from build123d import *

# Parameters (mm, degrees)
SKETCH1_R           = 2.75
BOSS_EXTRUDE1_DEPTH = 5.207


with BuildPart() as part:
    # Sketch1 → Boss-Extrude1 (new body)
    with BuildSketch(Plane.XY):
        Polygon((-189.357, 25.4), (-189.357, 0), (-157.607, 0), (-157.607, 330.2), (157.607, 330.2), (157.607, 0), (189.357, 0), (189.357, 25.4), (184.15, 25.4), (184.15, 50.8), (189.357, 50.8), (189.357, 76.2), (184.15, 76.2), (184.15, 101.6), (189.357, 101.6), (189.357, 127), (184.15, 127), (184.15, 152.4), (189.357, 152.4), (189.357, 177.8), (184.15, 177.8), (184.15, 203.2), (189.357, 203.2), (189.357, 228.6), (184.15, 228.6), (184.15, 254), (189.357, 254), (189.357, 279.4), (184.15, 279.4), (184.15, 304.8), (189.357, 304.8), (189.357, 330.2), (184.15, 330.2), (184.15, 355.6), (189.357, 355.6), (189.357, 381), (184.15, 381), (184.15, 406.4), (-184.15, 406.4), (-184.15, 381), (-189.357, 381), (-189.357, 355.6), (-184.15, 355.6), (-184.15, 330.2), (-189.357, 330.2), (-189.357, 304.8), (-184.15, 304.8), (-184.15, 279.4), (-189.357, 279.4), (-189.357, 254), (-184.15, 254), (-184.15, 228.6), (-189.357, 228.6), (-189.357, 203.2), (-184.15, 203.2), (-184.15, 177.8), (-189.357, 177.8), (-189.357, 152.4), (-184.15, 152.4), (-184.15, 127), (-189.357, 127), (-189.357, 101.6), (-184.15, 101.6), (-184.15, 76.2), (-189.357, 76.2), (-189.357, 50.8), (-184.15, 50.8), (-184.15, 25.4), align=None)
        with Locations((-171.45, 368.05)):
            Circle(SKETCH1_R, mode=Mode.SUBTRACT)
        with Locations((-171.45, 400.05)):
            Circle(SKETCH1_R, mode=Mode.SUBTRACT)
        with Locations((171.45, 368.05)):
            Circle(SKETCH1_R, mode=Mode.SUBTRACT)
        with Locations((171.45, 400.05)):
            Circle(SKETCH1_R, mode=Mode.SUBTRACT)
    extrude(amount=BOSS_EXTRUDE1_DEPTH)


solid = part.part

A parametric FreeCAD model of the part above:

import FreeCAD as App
import Part
import Sketcher
from FreeCAD import Vector
Q = App.Units.Quantity


def add_polygon(sketch, points):
    """Adds a closed chain of lines whose ends are joined by coincident constraints."""
    first, n = sketch.GeometryCount, len(points)
    for a, b in zip(points, points[1:] + points[:1]):
        sketch.addGeometry(Part.LineSegment(App.Vector(*a, 0), App.Vector(*b, 0)), False)
    for i in range(n):
        sketch.addConstraint(Sketcher.Constraint("Coincident", first + i, 2, first + (i + 1) % n, 1))

doc = App.newDocument("Part")
params = doc.addObject("Spreadsheet::Sheet", "Params")
for row, (alias, value) in enumerate([
    ("sketch1_height", "1 in"),
    ("sketch1_width", "14.5 in"),
    ("sketch1_width2", "1.25 in"),
    ("sketch1_width3", "12.41 in"),
    ("pad1_length", "0.205 in"),
], start=1):
    params.set(f"A{row}", alias)
    params.set(f"B{row}", "=" + value)
    params.setAlias(f"B{row}", alias)

body = doc.addObject("PartDesign::Body", "Body")

sketch1 = body.newObject("Sketcher::SketchObject", "Sketch")
sketch1.AttachmentSupport = (doc.getObject("XY_Plane"), [""])
sketch1.MapMode = "FlatFace"
add_polygon(sketch1, [(-189.4, 25.4), (-189.4, 0), (-157.6, 0), (-157.6, 330.2), (157.6, 330.2), (157.6, 0), (189.4, 0), (189.4, 25.4), (184.2, 25.4), (184.2, 50.8), (189.4, 50.8), (189.4, 76.2), (184.2, 76.2), (184.2, 101.6), (189.4, 101.6), (189.4, 127), (184.2, 127), (184.2, 152.4), (189.4, 152.4), (189.4, 177.8), (184.2, 177.8), (184.2, 203.2), (189.4, 203.2), (189.4, 228.6), (184.2, 228.6), (184.2, 254), (189.4, 254), (189.4, 279.4), (184.2, 279.4), (184.2, 304.8), (189.4, 304.8), (189.4, 330.2), (184.2, 330.2), (184.2, 355.6), (189.4, 355.6), (189.4, 381), (184.2, 381), (184.2, 406.4), (-184.2, 406.4), (-184.2, 381), (-189.4, 381), (-189.4, 355.6), (-184.2, 355.6), (-184.2, 330.2), (-189.4, 330.2), (-189.4, 304.8), (-184.2, 304.8), (-184.2, 279.4), (-189.4, 279.4), (-189.4, 254), (-184.2, 254), (-184.2, 228.6), (-189.4, 228.6), (-189.4, 203.2), (-184.2, 203.2), (-184.2, 177.8), (-189.4, 177.8), (-189.4, 152.4), (-184.2, 152.4), (-184.2, 127), (-189.4, 127), (-189.4, 101.6), (-184.2, 101.6), (-184.2, 76.2), (-189.4, 76.2), (-189.4, 50.8), (-184.2, 50.8), (-184.2, 25.4)])
sketch1.addGeometry(Part.Circle(Vector(-171.4, 368.1, 0), Vector(0, 0, 1), 2.8), False)
sketch1.addGeometry(Part.Circle(Vector(171.4, 368.1, 0), Vector(0, 0, 1), 2.8), False)
sketch1.addGeometry(Part.Circle(Vector(-171.4, 400.1, 0), Vector(0, 0, 1), 2.8), False)
sketch1.addGeometry(Part.Circle(Vector(171.4, 400.1, 0), Vector(0, 0, 1), 2.8), False)
sketch1.addConstraint(Sketcher.Constraint("Vertical", 0))
sketch1.addConstraint(Sketcher.Constraint("Horizontal", 1))
sketch1.addConstraint(Sketcher.Constraint("Vertical", 2))
sketch1.addConstraint(Sketcher.Constraint("Horizontal", 3))
sketch1.addConstraint(Sketcher.Constraint("Vertical", 4))
sketch1.addConstraint(Sketcher.Constraint("Horizontal", 5))
sketch1.addConstraint(Sketcher.Constraint("Vertical", 6))
sketch1.addConstraint(Sketcher.Constraint("Horizontal", 7))
sketch1.addConstraint(Sketcher.Constraint("Vertical", 8))
sketch1.addConstraint(Sketcher.Constraint("Horizontal", 9))
sketch1.addConstraint(Sketcher.Constraint("Vertical", 10))
sketch1.addConstraint(Sketcher.Constraint("Horizontal", 11))
sketch1.addConstraint(Sketcher.Constraint("Vertical", 12))
sketch1.addConstraint(Sketcher.Constraint("Horizontal", 13))
sketch1.addConstraint(Sketcher.Constraint("Vertical", 14))
sketch1.addConstraint(Sketcher.Constraint("Horizontal", 15))
sketch1.addConstraint(Sketcher.Constraint("Vertical", 16))
sketch1.addConstraint(Sketcher.Constraint("Horizontal", 17))
sketch1.addConstraint(Sketcher.Constraint("Vertical", 18))
sketch1.addConstraint(Sketcher.Constraint("Horizontal", 19))
sketch1.addConstraint(Sketcher.Constraint("Vertical", 20))
sketch1.addConstraint(Sketcher.Constraint("Horizontal", 21))
sketch1.addConstraint(Sketcher.Constraint("Vertical", 22))
sketch1.addConstraint(Sketcher.Constraint("Horizontal", 23))
sketch1.addConstraint(Sketcher.Constraint("Vertical", 24))
sketch1.addConstraint(Sketcher.Constraint("Horizontal", 25))
sketch1.addConstraint(Sketcher.Constraint("Vertical", 26))
sketch1.addConstraint(Sketcher.Constraint("Horizontal", 27))
sketch1.addConstraint(Sketcher.Constraint("Vertical", 28))
sketch1.addConstraint(Sketcher.Constraint("Horizontal", 29))
sketch1.addConstraint(Sketcher.Constraint("Vertical", 30))
sketch1.addConstraint(Sketcher.Constraint("Horizontal", 31))
sketch1.addConstraint(Sketcher.Constraint("Vertical", 32))
sketch1.addConstraint(Sketcher.Constraint("Horizontal", 33))
sketch1.addConstraint(Sketcher.Constraint("Vertical", 34))
sketch1.addConstraint(Sketcher.Constraint("Horizontal", 35))
sketch1.addConstraint(Sketcher.Constraint("Vertical", 36))
sketch1.addConstraint(Sketcher.Constraint("Horizontal", 37))
sketch1.addConstraint(Sketcher.Constraint("Vertical", 38))
sketch1.addConstraint(Sketcher.Constraint("Horizontal", 39))
sketch1.addConstraint(Sketcher.Constraint("Vertical", 40))
sketch1.addConstraint(Sketcher.Constraint("Horizontal", 41))
sketch1.addConstraint(Sketcher.Constraint("Vertical", 42))
sketch1.addConstraint(Sketcher.Constraint("Horizontal", 43))
sketch1.addConstraint(Sketcher.Constraint("Vertical", 44))
sketch1.addConstraint(Sketcher.Constraint("Horizontal", 45))
sketch1.addConstraint(Sketcher.Constraint("Vertical", 46))
sketch1.addConstraint(Sketcher.Constraint("Horizontal", 47))
sketch1.addConstraint(Sketcher.Constraint("Vertical", 48))
sketch1.addConstraint(Sketcher.Constraint("Horizontal", 49))
sketch1.addConstraint(Sketcher.Constraint("Vertical", 50))
sketch1.addConstraint(Sketcher.Constraint("Horizontal", 51))
sketch1.addConstraint(Sketcher.Constraint("Vertical", 52))
sketch1.addConstraint(Sketcher.Constraint("Horizontal", 53))
sketch1.addConstraint(Sketcher.Constraint("Vertical", 54))
sketch1.addConstraint(Sketcher.Constraint("Horizontal", 55))
sketch1.addConstraint(Sketcher.Constraint("Vertical", 56))
sketch1.addConstraint(Sketcher.Constraint("Horizontal", 57))
sketch1.addConstraint(Sketcher.Constraint("Vertical", 58))
sketch1.addConstraint(Sketcher.Constraint("Horizontal", 59))
sketch1.addConstraint(Sketcher.Constraint("Vertical", 60))
sketch1.addConstraint(Sketcher.Constraint("Horizontal", 61))
sketch1.addConstraint(Sketcher.Constraint("Vertical", 62))
sketch1.addConstraint(Sketcher.Constraint("Horizontal", 63))
sketch1.addConstraint(Sketcher.Constraint("Vertical", 64))
sketch1.addConstraint(Sketcher.Constraint("Horizontal", 65))
sketch1.addConstraint(Sketcher.Constraint("Vertical", 66))
sketch1.addConstraint(Sketcher.Constraint("Horizontal", 67))
sketch1.addConstraint(Sketcher.Constraint("Equal", 68, 69))
sketch1.addConstraint(Sketcher.Constraint("Equal", 69, 70))
sketch1.addConstraint(Sketcher.Constraint("Equal", 70, 71))
sketch1.addConstraint(Sketcher.Constraint("Symmetric", 1, 2, 4, 2, -1, 1))
sketch1.addConstraint(Sketcher.Constraint("Symmetric", 68, 3, 69, 3, -2))
sketch1.addConstraint(Sketcher.Constraint("Symmetric", 70, 3, 71, 3, -2))
sketch1.addConstraint(Sketcher.Constraint("Symmetric", 0, 2, 5, 2, -2))
sketch1.addConstraint(Sketcher.Constraint("Symmetric", 35, 2, 38, 2, -2))
sketch1.addConstraint(Sketcher.Constraint("Symmetric", 33, 2, 40, 2, -2))
sketch1.addConstraint(Sketcher.Constraint("Symmetric", 31, 2, 42, 2, -2))
sketch1.addConstraint(Sketcher.Constraint("Symmetric", 29, 2, 44, 2, -2))
sketch1.addConstraint(Sketcher.Constraint("Symmetric", 27, 2, 46, 2, -2))
sketch1.addConstraint(Sketcher.Constraint("Symmetric", 25, 2, 48, 2, -2))
sketch1.addConstraint(Sketcher.Constraint("Symmetric", 23, 2, 50, 2, -2))
sketch1.addConstraint(Sketcher.Constraint("Symmetric", 21, 2, 52, 2, -2))
sketch1.addConstraint(Sketcher.Constraint("Symmetric", 19, 2, 54, 2, -2))
sketch1.addConstraint(Sketcher.Constraint("Symmetric", 17, 2, 56, 2, -2))
sketch1.addConstraint(Sketcher.Constraint("Symmetric", 15, 2, 58, 2, -2))
sketch1.addConstraint(Sketcher.Constraint("Symmetric", 13, 2, 60, 2, -2))
sketch1.addConstraint(Sketcher.Constraint("Symmetric", 11, 2, 62, 2, -2))
sketch1.addConstraint(Sketcher.Constraint("Symmetric", 9, 2, 64, 2, -2))
sketch1.addConstraint(Sketcher.Constraint("Symmetric", 7, 2, 66, 2, -2))
sketch1.addConstraint(Sketcher.Constraint("Horizontal", 3, 2, 30, 2))
sketch1.addConstraint(Sketcher.Constraint("Vertical", 68, 3, 70, 3))
sketch1.addConstraint(Sketcher.Constraint("Vertical", 6, 2, 9, 2))
sketch1.addConstraint(Sketcher.Constraint("Vertical", 8, 2, 11, 2))
sketch1.addConstraint(Sketcher.Constraint("Vertical", 10, 2, 13, 2))
sketch1.addConstraint(Sketcher.Constraint("Vertical", 12, 2, 15, 2))
sketch1.addConstraint(Sketcher.Constraint("Vertical", 14, 2, 17, 2))
sketch1.addConstraint(Sketcher.Constraint("Vertical", 16, 2, 19, 2))
sketch1.addConstraint(Sketcher.Constraint("Vertical", 18, 2, 21, 2))
sketch1.addConstraint(Sketcher.Constraint("Vertical", 20, 2, 23, 2))
sketch1.addConstraint(Sketcher.Constraint("Vertical", 22, 2, 25, 2))
sketch1.addConstraint(Sketcher.Constraint("Vertical", 24, 2, 27, 2))
sketch1.addConstraint(Sketcher.Constraint("Vertical", 26, 2, 29, 2))
sketch1.addConstraint(Sketcher.Constraint("Vertical", 28, 2, 31, 2))
sketch1.addConstraint(Sketcher.Constraint("Vertical", 30, 2, 33, 2))
sketch1.addConstraint(Sketcher.Constraint("Vertical", 32, 2, 35, 2))
sketch1.addConstraint(Sketcher.Constraint("Equal", 6, 8))
sketch1.addConstraint(Sketcher.Constraint("Equal", 8, 10))
sketch1.addConstraint(Sketcher.Constraint("Equal", 10, 12))
sketch1.addConstraint(Sketcher.Constraint("Equal", 12, 14))
sketch1.addConstraint(Sketcher.Constraint("Equal", 14, 16))
sketch1.addConstraint(Sketcher.Constraint("Equal", 16, 18))
sketch1.addConstraint(Sketcher.Constraint("Equal", 18, 20))
sketch1.addConstraint(Sketcher.Constraint("Equal", 20, 22))
sketch1.addConstraint(Sketcher.Constraint("Equal", 22, 24))
sketch1.addConstraint(Sketcher.Constraint("Equal", 24, 26))
sketch1.addConstraint(Sketcher.Constraint("Equal", 26, 28))
sketch1.addConstraint(Sketcher.Constraint("Equal", 28, 30))
sketch1.addConstraint(Sketcher.Constraint("Equal", 30, 32))
sketch1.addConstraint(Sketcher.Constraint("Equal", 32, 34))
sketch1.addConstraint(Sketcher.Constraint("Equal", 34, 36))
sketch1.addConstraint(Sketcher.Constraint("DistanceY", 0, 2, 0, 1, Q("1 in")))
sketch1.addConstraint(Sketcher.Constraint("DistanceX", 37, 2, 37, 1, Q("14.5 in")))
sketch1.addConstraint(Sketcher.Constraint("DistanceX", 1, 1, 1, 2, Q("1.25 in")))
sketch1.addConstraint(Sketcher.Constraint("DistanceX", 3, 1, 3, 2, Q("12.41 in")))
sketch1.addConstraint(Sketcher.Constraint("Diameter", 68, 5.5))
sketch1.addConstraint(Sketcher.Constraint("DistanceX", 68, 3, -1, 1, Q("6.75 in")))
sketch1.addConstraint(Sketcher.Constraint("DistanceY", -1, 1, 70, 3, Q("15.75 in")))
sketch1.addConstraint(Sketcher.Constraint("DistanceY", -1, 1, 68, 3, 368.05))
sketch1.setExpression("Constraints[189]", "Params.sketch1_height")
sketch1.setExpression("Constraints[190]", "Params.sketch1_width")
sketch1.setExpression("Constraints[191]", "Params.sketch1_width2")
sketch1.setExpression("Constraints[192]", "Params.sketch1_width3")
pad1 = body.newObject("PartDesign::Pad", "Pad")
pad1.Profile = sketch1
pad1.setExpression("Length", "Params.pad1_length")

doc.recompute()
